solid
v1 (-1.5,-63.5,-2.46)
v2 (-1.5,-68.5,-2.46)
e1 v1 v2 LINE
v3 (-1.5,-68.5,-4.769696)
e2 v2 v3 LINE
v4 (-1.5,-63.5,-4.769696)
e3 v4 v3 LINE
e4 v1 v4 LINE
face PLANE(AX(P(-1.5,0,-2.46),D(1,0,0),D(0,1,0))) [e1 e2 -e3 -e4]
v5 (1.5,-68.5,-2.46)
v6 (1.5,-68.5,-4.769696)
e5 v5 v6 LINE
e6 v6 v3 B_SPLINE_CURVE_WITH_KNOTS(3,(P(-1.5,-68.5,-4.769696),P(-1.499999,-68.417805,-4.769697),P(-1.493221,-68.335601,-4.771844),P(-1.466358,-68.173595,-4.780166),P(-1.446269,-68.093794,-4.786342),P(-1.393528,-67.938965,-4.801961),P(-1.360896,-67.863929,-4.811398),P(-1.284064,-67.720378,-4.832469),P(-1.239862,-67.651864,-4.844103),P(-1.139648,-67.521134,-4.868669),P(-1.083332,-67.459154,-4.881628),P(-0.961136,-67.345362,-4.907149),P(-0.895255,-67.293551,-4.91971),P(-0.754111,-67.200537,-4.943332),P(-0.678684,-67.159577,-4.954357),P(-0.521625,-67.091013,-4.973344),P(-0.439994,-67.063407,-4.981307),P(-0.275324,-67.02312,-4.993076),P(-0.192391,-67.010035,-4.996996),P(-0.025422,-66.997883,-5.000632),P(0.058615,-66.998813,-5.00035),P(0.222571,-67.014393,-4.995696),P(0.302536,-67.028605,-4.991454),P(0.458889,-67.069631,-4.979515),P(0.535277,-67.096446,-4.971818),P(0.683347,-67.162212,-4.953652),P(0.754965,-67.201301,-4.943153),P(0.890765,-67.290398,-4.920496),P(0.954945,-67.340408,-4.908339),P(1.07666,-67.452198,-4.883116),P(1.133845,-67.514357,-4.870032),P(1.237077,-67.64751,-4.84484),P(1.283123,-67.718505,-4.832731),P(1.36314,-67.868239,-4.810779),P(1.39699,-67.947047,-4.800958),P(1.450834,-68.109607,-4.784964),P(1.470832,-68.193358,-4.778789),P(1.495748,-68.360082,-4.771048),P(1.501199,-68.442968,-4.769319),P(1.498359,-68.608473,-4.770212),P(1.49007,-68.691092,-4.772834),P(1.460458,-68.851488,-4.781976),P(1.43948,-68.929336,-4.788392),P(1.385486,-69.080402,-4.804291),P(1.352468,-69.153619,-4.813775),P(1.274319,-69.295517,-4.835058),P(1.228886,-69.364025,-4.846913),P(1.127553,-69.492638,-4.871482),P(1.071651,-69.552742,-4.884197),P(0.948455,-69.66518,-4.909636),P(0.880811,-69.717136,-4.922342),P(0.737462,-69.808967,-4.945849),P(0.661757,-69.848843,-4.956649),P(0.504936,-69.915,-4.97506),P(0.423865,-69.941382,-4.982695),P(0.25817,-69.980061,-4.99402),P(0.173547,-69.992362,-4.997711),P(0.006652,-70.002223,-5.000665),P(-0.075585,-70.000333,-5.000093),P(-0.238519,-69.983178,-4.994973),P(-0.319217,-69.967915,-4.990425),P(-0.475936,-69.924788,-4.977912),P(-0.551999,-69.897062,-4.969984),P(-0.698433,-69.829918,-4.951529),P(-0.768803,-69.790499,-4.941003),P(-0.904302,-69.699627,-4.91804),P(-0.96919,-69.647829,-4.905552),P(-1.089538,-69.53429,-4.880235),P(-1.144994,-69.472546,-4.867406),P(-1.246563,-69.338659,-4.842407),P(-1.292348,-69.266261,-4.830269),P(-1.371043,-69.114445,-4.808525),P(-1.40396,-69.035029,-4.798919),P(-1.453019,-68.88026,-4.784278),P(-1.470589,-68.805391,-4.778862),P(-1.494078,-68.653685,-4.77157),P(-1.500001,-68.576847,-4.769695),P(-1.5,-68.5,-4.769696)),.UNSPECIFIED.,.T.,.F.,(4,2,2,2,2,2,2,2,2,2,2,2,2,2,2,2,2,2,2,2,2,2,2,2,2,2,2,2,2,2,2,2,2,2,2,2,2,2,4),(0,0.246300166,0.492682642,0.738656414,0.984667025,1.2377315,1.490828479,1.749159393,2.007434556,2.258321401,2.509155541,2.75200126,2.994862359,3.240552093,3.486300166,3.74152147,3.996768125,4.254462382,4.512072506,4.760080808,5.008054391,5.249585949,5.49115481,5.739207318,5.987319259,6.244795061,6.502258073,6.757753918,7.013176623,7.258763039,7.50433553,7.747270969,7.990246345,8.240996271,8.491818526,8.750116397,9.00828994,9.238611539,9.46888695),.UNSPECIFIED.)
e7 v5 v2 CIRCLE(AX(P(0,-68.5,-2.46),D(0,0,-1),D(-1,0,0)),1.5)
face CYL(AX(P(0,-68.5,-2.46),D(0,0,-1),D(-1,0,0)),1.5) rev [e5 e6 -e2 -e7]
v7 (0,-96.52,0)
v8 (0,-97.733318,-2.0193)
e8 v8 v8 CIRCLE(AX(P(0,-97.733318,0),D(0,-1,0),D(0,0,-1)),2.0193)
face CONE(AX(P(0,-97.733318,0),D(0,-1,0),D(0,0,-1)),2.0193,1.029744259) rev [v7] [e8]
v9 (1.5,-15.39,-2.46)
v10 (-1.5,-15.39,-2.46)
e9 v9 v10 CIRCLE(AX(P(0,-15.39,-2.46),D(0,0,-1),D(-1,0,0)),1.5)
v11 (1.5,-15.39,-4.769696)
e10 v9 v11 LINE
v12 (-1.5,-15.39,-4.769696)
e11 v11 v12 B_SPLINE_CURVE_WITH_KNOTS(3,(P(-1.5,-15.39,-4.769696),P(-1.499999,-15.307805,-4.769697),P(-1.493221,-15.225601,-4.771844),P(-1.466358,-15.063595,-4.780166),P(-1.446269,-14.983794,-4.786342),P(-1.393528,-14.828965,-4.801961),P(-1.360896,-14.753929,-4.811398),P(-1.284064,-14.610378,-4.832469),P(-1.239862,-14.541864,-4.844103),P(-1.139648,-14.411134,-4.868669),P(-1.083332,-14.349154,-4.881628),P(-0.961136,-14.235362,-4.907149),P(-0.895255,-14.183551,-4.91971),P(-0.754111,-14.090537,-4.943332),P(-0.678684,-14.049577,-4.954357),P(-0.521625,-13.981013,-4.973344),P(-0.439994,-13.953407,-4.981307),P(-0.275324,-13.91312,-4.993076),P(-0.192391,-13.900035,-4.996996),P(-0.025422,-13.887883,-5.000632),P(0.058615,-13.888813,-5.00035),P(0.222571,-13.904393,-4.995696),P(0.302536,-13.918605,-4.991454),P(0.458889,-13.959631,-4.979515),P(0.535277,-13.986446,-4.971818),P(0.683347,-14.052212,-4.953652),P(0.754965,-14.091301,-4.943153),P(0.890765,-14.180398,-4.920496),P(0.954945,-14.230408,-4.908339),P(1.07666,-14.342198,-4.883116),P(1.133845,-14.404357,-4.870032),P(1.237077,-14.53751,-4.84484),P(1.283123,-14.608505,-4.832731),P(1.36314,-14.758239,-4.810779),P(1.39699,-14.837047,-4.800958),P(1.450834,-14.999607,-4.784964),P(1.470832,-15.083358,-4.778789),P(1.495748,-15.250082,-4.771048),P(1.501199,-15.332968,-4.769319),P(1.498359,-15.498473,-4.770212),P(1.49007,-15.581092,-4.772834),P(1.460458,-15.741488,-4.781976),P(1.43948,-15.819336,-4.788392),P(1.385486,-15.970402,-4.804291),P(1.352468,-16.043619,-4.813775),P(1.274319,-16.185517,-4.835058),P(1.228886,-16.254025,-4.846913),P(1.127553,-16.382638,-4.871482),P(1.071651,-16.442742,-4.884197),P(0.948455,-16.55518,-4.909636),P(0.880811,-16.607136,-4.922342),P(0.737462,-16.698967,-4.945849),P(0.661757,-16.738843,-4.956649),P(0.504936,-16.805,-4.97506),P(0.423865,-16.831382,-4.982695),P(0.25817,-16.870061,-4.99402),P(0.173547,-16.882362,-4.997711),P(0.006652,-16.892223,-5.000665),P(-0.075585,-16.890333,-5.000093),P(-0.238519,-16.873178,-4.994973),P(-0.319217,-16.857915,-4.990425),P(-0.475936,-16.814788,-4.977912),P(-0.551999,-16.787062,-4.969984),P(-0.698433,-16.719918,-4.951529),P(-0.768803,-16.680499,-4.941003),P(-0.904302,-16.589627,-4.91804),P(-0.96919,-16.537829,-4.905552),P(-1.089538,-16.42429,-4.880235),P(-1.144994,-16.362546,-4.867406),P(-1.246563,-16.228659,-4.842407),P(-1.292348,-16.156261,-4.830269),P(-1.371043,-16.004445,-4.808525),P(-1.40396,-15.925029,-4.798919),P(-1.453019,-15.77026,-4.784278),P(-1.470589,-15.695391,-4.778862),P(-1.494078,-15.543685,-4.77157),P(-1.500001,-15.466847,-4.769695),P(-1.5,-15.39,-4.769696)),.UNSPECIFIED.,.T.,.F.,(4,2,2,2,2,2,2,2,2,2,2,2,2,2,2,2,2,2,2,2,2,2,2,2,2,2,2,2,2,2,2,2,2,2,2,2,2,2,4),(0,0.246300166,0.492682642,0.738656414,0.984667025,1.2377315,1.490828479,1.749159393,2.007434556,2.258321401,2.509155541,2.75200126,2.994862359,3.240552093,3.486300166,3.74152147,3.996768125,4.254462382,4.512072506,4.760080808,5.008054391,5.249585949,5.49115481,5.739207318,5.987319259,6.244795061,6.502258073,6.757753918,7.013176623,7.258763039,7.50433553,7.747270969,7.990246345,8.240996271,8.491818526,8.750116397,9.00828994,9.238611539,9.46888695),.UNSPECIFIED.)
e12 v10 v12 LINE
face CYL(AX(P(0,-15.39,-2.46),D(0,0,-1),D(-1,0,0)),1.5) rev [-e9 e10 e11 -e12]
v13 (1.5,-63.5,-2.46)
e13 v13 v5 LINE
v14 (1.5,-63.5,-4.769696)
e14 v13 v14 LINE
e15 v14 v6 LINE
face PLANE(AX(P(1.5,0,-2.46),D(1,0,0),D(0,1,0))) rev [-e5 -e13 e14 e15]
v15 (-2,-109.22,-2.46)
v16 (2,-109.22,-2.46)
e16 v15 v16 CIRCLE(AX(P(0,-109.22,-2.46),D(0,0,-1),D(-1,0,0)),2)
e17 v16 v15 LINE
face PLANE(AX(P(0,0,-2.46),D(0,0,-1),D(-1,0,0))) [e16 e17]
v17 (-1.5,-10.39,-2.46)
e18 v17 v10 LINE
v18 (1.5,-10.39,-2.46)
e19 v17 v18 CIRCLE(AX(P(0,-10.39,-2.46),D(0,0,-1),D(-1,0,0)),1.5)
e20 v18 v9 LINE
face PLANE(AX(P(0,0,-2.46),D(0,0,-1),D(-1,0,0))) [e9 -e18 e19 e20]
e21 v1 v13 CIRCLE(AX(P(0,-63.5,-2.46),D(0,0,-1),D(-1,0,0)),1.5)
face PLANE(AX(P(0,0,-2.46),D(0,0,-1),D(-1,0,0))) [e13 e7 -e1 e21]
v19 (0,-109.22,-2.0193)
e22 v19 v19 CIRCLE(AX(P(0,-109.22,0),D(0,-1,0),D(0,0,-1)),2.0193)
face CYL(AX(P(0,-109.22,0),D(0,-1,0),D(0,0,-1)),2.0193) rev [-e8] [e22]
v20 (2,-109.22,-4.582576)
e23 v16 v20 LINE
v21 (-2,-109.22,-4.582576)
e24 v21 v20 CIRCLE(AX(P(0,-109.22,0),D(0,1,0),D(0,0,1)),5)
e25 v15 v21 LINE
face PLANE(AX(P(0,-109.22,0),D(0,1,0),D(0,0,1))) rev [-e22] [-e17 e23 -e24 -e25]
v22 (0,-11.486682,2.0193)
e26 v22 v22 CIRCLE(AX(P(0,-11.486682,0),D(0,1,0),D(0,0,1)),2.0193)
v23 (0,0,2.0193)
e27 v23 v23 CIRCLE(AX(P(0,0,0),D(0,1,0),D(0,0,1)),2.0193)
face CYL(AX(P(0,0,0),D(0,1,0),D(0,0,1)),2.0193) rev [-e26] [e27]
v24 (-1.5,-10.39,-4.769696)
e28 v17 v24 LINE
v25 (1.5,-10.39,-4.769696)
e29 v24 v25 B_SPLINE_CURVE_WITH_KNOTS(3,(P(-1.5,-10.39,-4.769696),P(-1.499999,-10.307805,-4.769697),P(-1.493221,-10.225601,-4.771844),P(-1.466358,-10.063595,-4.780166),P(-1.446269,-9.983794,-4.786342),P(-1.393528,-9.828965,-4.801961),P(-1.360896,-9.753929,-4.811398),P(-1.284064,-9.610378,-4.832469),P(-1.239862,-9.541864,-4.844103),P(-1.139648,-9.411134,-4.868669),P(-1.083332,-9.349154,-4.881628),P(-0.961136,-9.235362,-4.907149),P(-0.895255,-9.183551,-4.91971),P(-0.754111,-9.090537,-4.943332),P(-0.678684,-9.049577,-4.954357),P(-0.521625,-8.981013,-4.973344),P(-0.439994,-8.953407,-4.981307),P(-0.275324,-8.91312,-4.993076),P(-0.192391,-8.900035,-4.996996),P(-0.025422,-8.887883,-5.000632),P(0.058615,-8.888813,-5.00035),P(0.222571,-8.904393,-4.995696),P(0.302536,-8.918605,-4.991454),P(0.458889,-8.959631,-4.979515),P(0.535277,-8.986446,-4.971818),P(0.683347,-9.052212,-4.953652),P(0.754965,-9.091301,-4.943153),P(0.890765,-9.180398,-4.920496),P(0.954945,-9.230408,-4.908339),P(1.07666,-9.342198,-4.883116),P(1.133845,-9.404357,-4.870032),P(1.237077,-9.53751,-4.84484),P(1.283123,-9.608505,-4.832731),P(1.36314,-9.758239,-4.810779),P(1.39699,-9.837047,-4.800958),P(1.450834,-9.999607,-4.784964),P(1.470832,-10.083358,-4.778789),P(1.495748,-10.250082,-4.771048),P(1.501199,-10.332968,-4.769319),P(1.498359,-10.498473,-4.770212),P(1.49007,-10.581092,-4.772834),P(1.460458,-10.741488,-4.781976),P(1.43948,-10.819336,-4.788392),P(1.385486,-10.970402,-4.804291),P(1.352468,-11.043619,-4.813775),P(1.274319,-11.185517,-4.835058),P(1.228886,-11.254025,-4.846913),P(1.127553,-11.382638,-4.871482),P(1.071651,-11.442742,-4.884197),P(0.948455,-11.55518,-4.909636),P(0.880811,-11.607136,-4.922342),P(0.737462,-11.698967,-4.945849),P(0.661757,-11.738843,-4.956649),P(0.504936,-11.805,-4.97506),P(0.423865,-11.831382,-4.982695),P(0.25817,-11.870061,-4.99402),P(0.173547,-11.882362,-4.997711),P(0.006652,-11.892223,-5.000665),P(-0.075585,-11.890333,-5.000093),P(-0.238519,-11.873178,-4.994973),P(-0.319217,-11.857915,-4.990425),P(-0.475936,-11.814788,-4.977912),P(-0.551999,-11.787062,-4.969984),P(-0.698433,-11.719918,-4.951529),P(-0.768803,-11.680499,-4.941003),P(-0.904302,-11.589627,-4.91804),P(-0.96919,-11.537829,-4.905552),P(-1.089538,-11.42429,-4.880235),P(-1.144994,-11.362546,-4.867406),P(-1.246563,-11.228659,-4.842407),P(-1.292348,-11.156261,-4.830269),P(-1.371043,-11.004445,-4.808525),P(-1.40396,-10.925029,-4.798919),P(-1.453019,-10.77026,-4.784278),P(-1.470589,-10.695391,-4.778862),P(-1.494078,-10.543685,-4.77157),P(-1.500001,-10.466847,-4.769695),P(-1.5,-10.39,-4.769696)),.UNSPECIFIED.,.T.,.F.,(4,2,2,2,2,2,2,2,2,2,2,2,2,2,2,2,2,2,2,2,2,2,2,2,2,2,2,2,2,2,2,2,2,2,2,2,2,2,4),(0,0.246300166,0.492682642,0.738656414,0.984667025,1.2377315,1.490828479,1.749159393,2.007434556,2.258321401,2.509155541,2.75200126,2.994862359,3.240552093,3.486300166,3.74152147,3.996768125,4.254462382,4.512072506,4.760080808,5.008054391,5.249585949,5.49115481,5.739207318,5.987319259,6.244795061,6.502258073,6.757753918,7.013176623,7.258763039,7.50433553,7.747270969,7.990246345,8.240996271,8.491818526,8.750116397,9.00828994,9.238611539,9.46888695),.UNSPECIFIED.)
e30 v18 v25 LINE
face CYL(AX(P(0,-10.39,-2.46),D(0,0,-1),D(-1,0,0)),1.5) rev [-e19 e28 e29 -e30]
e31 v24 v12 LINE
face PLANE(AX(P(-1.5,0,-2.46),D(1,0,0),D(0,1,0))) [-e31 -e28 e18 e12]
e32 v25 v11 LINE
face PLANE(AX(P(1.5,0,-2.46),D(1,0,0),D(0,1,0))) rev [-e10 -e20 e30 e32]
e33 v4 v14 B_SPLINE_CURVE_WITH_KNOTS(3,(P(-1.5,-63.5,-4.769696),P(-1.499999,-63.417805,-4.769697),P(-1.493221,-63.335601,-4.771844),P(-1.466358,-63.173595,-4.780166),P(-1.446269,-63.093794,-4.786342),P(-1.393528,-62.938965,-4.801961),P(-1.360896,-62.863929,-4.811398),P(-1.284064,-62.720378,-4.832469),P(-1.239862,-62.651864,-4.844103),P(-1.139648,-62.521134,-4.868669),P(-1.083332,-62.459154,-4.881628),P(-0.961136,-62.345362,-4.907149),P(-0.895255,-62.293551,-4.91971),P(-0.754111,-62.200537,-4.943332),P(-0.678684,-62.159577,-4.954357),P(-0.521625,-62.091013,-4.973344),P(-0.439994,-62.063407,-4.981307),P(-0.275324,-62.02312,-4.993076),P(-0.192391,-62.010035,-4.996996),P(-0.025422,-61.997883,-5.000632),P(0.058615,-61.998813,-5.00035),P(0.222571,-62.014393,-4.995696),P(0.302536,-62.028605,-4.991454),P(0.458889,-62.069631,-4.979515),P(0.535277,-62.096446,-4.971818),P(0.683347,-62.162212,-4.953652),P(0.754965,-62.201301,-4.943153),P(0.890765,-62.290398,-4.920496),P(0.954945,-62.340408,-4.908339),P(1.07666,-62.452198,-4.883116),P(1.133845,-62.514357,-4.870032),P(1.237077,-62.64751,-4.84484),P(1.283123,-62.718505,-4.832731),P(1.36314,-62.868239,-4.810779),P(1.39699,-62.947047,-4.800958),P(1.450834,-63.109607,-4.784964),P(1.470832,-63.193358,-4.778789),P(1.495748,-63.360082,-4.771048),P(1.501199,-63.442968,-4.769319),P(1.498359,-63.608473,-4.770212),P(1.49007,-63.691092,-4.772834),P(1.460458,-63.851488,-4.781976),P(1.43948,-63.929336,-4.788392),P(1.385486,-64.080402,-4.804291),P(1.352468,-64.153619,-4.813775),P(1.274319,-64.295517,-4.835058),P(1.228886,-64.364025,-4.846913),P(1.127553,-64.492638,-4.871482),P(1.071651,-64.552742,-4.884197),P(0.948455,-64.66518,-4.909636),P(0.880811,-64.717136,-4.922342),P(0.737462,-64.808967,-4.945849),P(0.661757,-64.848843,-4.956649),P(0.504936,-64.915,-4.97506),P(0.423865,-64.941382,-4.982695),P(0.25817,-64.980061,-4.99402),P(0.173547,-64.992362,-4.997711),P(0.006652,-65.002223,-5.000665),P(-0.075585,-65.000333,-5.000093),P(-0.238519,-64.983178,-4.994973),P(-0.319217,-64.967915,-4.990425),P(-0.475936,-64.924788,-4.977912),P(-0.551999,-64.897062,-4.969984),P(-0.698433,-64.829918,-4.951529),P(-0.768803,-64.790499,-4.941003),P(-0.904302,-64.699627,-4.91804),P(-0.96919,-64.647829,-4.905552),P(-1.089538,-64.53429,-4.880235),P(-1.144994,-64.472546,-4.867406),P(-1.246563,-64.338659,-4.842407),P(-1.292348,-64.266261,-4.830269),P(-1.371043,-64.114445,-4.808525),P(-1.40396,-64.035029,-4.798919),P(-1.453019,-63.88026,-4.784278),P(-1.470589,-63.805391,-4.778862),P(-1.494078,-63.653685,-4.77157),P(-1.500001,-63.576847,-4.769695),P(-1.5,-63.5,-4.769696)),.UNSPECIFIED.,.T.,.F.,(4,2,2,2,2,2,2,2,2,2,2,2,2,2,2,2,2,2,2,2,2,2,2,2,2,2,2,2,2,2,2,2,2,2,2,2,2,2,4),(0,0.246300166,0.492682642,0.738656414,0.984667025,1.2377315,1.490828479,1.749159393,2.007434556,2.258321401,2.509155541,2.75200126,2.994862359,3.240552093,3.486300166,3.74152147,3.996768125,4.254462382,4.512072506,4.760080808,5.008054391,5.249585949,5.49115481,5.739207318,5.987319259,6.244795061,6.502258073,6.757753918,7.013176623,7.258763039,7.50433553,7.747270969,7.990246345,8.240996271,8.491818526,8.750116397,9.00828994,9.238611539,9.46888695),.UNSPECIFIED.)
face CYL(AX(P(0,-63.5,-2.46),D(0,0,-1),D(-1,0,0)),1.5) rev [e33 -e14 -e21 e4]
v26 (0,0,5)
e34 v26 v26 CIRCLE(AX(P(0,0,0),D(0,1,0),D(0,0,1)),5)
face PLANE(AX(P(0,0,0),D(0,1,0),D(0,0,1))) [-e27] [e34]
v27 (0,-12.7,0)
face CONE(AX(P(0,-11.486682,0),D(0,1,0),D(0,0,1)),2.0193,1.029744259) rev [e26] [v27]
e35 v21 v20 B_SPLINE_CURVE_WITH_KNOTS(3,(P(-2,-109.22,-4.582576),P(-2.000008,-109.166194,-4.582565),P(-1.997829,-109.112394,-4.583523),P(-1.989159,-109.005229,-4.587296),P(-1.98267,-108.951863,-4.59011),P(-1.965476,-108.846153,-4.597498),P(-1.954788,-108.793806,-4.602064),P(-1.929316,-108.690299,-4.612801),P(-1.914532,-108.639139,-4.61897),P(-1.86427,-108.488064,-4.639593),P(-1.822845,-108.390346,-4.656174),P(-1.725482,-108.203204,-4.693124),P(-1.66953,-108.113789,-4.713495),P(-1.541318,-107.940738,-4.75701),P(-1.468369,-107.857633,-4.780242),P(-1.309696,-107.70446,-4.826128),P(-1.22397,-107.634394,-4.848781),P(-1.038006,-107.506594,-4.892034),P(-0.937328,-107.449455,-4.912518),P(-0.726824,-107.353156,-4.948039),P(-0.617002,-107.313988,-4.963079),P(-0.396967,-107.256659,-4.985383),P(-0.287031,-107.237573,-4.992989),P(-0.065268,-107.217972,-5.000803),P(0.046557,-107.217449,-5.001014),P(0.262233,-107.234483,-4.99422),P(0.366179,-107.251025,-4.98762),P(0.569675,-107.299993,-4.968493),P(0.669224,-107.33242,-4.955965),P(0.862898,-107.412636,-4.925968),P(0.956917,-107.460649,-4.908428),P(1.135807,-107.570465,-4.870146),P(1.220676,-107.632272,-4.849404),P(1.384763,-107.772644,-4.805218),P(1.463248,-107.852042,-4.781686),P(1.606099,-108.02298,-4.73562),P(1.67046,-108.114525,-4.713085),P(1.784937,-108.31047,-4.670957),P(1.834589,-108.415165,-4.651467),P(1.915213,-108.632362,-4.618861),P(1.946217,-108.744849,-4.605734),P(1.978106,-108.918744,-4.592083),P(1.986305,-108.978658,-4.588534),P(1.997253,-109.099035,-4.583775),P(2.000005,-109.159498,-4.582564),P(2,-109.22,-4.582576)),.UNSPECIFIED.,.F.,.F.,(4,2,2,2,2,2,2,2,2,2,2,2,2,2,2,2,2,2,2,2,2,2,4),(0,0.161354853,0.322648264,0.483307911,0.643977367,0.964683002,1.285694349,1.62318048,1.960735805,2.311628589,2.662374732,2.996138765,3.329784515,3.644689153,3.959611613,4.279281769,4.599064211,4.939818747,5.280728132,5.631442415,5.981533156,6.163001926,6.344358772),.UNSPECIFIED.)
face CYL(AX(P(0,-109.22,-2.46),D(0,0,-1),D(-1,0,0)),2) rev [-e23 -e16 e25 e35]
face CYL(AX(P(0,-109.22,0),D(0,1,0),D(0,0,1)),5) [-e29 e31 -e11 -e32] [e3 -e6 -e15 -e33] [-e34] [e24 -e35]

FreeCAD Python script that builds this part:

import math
import FreeCAD as App
import Part
import Sketcher
Q = App.Units.Quantity

doc = App.newDocument("Part")
body = doc.addObject("PartDesign::Body", "Body")

sketch1 = body.newObject("Sketcher::SketchObject", "Sketch")
sketch1.AttachmentSupport = (doc.getObject("XZ_Plane"), [""])
sketch1.MapMode = "FlatFace"
sketch1.addGeometry(Part.Circle(App.Vector(0, 0, 0), App.Vector(0, 0, 1), 5), False)
sketch1.addConstraint(Sketcher.Constraint("Coincident", 0, 3, -1, 1))
sketch1.addConstraint(Sketcher.Constraint("Diameter", 0, Q("10 mm")))
pad1 = body.newObject("PartDesign::Pad", "Pad")
pad1.Profile = sketch1
pad1.Length = 109.22

sketch2 = body.newObject("Sketcher::SketchObject", "Sketch001")
sketch2.AttachmentSupport = (doc.getObject("XY_Plane"), [""])
sketch2.MapMode = "FlatFace"
sketch2.AttachmentOffset = App.Placement(App.Vector(0, 0, -5), App.Rotation())
sketch2.addGeometry(Part.LineSegment(App.Vector(2, -109.2, 0), App.Vector(2, -114.2, 0)), False)
sketch2.addGeometry(Part.ArcOfCircle(Part.Circle(App.Vector(0, -114.2, 0), App.Vector(0, 0, 1), 2), math.radians(180), math.radians(360)), False)
sketch2.addGeometry(Part.LineSegment(App.Vector(-2, -114.2, 0), App.Vector(-2, -109.2, 0)), False)
sketch2.addGeometry(Part.ArcOfCircle(Part.Circle(App.Vector(0, -109.2, 0), App.Vector(0, 0, 1), 2), math.radians(0), math.radians(180)), False)
sketch2.addGeometry(Part.LineSegment(App.Vector(1.5, -63.5, 0), App.Vector(1.5, -68.5, 0)), False)
sketch2.addGeometry(Part.ArcOfCircle(Part.Circle(App.Vector(0, -68.5, 0), App.Vector(0, 0, 1), 1.5), math.radians(180), math.radians(360)), False)
sketch2.addGeometry(Part.LineSegment(App.Vector(-1.5, -68.5, 0), App.Vector(-1.5, -63.5, 0)), False)
sketch2.addGeometry(Part.ArcOfCircle(Part.Circle(App.Vector(0, -63.5, 0), App.Vector(0, 0, 1), 1.5), math.radians(0), math.radians(180)), False)
sketch2.addGeometry(Part.LineSegment(App.Vector(1.5, -10.4, 0), App.Vector(1.5, -15.4, 0)), False)
sketch2.addGeometry(Part.ArcOfCircle(Part.Circle(App.Vector(0, -15.4, 0), App.Vector(0, 0, 1), 1.5), math.radians(180), math.radians(360)), False)
sketch2.addGeometry(Part.LineSegment(App.Vector(-1.5, -15.4, 0), App.Vector(-1.5, -10.4, 0)), False)
sketch2.addGeometry(Part.ArcOfCircle(Part.Circle(App.Vector(0, -10.4, 0), App.Vector(0, 0, 1), 1.5), math.radians(0), math.radians(180)), False)
sketch2.addConstraint(Sketcher.Constraint("Tangent", 0, 2, 1, 2))
sketch2.addConstraint(Sketcher.Constraint("Tangent", 1, 1, 2, 1))
sketch2.addConstraint(Sketcher.Constraint("Tangent", 2, 2, 3, 2))
sketch2.addConstraint(Sketcher.Constraint("Tangent", 3, 1, 0, 1))
sketch2.addConstraint(Sketcher.Constraint("Tangent", 4, 2, 5, 2))
sketch2.addConstraint(Sketcher.Constraint("Tangent", 5, 1, 6, 1))
sketch2.addConstraint(Sketcher.Constraint("Tangent", 6, 2, 7, 2))
sketch2.addConstraint(Sketcher.Constraint("Tangent", 7, 1, 4, 1))
sketch2.addConstraint(Sketcher.Constraint("Tangent", 8, 2, 9, 2))
sketch2.addConstraint(Sketcher.Constraint("Tangent", 9, 1, 10, 1))
sketch2.addConstraint(Sketcher.Constraint("Tangent", 10, 2, 11, 2))
sketch2.addConstraint(Sketcher.Constraint("Tangent", 11, 1, 8, 1))
sketch2.addConstraint(Sketcher.Constraint("Vertical", 0))
sketch2.addConstraint(Sketcher.Constraint("Vertical", 2))
sketch2.addConstraint(Sketcher.Constraint("Vertical", 4))
sketch2.addConstraint(Sketcher.Constraint("Vertical", 6))
sketch2.addConstraint(Sketcher.Constraint("Vertical", 8))
sketch2.addConstraint(Sketcher.Constraint("Vertical", 10))
sketch2.addConstraint(Sketcher.Constraint("Equal", 7, 9))
sketch2.addConstraint(Sketcher.Constraint("PointOnObject", 1, 3, -2))
sketch2.addConstraint(Sketcher.Constraint("PointOnObject", 5, 3, -2))
sketch2.addConstraint(Sketcher.Constraint("PointOnObject", 9, 3, -2))
sketch2.addConstraint(Sketcher.Constraint("Equal", 2, 4))
sketch2.addConstraint(Sketcher.Constraint("Equal", 6, 8))
sketch2.addConstraint(Sketcher.Constraint("Radius", 1, Q("2 mm")))
sketch2.addConstraint(Sketcher.Constraint("Radius", 5, Q("1.5 mm")))
sketch2.addConstraint(Sketcher.Constraint("DistanceY", 0, 2, 0, 1, Q("5 mm")))
sketch2.addConstraint(Sketcher.Constraint("DistanceY", 5, 3, -1, 1, Q("68.5 mm")))
sketch2.addConstraint(Sketcher.Constraint("DistanceY", 1, 3, -1, 1, Q("114.22 mm")))
sketch2.addConstraint(Sketcher.Constraint("DistanceY", 9, 3, -1, 1, Q("15.39 mm")))
pocket1 = body.newObject("PartDesign::Pocket", "Pocket")
pocket1.Profile = sketch2
pocket1.Length = 2.54
pocket1.Reversed = True

sketch3 = body.newObject("Sketcher::SketchObject", "Sketch002")
sketch3.AttachmentSupport = (doc.getObject("XZ_Plane"), [""])
sketch3.MapMode = "FlatFace"
sketch3.addGeometry(Part.Circle(App.Vector(0, 0, 0), App.Vector(0, 0, 1), 2), False)
sketch3.addConstraint(Sketcher.Constraint("Coincident", 0, 3, -1, 1))
sketch3.addConstraint(Sketcher.Constraint("Diameter", 0, Q("4.0386 mm")))
doc.recompute()
hole = body.newObject("PartDesign::Hole", "Hole")
hole.Profile = sketch3
hole.ThreadType = "None"
hole.Diameter = 4.0386
hole.DepthType = "Dimension"
hole.Depth = 11.486682
hole.DrillPoint = "Angled"
hole.DrillPointAngle = 118
hole.Reversed = True

sketch4 = body.newObject("Sketcher::SketchObject", "Sketch003")
sketch4.AttachmentSupport = (doc.getObject("XZ_Plane"), [""])
sketch4.MapMode = "FlatFace"
sketch4.AttachmentOffset = App.Placement(App.Vector(0, 0, 109.22), App.Rotation())
sketch4.addGeometry(Part.Circle(App.Vector(0, 0, 0), App.Vector(0, 0, 1), 2), False)
sketch4.addConstraint(Sketcher.Constraint("Coincident", 0, 3, -1, 1))
sketch4.addConstraint(Sketcher.Constraint("Diameter", 0, Q("4.0386 mm")))
doc.recompute()
hole2 = body.newObject("PartDesign::Hole", "Hole001")
hole2.Profile = sketch4
hole2.ThreadType = "None"
hole2.Diameter = 4.0386
hole2.DepthType = "Dimension"
hole2.Depth = 11.486682
hole2.DrillPoint = "Angled"
hole2.DrillPointAngle = 118

doc.recompute()
